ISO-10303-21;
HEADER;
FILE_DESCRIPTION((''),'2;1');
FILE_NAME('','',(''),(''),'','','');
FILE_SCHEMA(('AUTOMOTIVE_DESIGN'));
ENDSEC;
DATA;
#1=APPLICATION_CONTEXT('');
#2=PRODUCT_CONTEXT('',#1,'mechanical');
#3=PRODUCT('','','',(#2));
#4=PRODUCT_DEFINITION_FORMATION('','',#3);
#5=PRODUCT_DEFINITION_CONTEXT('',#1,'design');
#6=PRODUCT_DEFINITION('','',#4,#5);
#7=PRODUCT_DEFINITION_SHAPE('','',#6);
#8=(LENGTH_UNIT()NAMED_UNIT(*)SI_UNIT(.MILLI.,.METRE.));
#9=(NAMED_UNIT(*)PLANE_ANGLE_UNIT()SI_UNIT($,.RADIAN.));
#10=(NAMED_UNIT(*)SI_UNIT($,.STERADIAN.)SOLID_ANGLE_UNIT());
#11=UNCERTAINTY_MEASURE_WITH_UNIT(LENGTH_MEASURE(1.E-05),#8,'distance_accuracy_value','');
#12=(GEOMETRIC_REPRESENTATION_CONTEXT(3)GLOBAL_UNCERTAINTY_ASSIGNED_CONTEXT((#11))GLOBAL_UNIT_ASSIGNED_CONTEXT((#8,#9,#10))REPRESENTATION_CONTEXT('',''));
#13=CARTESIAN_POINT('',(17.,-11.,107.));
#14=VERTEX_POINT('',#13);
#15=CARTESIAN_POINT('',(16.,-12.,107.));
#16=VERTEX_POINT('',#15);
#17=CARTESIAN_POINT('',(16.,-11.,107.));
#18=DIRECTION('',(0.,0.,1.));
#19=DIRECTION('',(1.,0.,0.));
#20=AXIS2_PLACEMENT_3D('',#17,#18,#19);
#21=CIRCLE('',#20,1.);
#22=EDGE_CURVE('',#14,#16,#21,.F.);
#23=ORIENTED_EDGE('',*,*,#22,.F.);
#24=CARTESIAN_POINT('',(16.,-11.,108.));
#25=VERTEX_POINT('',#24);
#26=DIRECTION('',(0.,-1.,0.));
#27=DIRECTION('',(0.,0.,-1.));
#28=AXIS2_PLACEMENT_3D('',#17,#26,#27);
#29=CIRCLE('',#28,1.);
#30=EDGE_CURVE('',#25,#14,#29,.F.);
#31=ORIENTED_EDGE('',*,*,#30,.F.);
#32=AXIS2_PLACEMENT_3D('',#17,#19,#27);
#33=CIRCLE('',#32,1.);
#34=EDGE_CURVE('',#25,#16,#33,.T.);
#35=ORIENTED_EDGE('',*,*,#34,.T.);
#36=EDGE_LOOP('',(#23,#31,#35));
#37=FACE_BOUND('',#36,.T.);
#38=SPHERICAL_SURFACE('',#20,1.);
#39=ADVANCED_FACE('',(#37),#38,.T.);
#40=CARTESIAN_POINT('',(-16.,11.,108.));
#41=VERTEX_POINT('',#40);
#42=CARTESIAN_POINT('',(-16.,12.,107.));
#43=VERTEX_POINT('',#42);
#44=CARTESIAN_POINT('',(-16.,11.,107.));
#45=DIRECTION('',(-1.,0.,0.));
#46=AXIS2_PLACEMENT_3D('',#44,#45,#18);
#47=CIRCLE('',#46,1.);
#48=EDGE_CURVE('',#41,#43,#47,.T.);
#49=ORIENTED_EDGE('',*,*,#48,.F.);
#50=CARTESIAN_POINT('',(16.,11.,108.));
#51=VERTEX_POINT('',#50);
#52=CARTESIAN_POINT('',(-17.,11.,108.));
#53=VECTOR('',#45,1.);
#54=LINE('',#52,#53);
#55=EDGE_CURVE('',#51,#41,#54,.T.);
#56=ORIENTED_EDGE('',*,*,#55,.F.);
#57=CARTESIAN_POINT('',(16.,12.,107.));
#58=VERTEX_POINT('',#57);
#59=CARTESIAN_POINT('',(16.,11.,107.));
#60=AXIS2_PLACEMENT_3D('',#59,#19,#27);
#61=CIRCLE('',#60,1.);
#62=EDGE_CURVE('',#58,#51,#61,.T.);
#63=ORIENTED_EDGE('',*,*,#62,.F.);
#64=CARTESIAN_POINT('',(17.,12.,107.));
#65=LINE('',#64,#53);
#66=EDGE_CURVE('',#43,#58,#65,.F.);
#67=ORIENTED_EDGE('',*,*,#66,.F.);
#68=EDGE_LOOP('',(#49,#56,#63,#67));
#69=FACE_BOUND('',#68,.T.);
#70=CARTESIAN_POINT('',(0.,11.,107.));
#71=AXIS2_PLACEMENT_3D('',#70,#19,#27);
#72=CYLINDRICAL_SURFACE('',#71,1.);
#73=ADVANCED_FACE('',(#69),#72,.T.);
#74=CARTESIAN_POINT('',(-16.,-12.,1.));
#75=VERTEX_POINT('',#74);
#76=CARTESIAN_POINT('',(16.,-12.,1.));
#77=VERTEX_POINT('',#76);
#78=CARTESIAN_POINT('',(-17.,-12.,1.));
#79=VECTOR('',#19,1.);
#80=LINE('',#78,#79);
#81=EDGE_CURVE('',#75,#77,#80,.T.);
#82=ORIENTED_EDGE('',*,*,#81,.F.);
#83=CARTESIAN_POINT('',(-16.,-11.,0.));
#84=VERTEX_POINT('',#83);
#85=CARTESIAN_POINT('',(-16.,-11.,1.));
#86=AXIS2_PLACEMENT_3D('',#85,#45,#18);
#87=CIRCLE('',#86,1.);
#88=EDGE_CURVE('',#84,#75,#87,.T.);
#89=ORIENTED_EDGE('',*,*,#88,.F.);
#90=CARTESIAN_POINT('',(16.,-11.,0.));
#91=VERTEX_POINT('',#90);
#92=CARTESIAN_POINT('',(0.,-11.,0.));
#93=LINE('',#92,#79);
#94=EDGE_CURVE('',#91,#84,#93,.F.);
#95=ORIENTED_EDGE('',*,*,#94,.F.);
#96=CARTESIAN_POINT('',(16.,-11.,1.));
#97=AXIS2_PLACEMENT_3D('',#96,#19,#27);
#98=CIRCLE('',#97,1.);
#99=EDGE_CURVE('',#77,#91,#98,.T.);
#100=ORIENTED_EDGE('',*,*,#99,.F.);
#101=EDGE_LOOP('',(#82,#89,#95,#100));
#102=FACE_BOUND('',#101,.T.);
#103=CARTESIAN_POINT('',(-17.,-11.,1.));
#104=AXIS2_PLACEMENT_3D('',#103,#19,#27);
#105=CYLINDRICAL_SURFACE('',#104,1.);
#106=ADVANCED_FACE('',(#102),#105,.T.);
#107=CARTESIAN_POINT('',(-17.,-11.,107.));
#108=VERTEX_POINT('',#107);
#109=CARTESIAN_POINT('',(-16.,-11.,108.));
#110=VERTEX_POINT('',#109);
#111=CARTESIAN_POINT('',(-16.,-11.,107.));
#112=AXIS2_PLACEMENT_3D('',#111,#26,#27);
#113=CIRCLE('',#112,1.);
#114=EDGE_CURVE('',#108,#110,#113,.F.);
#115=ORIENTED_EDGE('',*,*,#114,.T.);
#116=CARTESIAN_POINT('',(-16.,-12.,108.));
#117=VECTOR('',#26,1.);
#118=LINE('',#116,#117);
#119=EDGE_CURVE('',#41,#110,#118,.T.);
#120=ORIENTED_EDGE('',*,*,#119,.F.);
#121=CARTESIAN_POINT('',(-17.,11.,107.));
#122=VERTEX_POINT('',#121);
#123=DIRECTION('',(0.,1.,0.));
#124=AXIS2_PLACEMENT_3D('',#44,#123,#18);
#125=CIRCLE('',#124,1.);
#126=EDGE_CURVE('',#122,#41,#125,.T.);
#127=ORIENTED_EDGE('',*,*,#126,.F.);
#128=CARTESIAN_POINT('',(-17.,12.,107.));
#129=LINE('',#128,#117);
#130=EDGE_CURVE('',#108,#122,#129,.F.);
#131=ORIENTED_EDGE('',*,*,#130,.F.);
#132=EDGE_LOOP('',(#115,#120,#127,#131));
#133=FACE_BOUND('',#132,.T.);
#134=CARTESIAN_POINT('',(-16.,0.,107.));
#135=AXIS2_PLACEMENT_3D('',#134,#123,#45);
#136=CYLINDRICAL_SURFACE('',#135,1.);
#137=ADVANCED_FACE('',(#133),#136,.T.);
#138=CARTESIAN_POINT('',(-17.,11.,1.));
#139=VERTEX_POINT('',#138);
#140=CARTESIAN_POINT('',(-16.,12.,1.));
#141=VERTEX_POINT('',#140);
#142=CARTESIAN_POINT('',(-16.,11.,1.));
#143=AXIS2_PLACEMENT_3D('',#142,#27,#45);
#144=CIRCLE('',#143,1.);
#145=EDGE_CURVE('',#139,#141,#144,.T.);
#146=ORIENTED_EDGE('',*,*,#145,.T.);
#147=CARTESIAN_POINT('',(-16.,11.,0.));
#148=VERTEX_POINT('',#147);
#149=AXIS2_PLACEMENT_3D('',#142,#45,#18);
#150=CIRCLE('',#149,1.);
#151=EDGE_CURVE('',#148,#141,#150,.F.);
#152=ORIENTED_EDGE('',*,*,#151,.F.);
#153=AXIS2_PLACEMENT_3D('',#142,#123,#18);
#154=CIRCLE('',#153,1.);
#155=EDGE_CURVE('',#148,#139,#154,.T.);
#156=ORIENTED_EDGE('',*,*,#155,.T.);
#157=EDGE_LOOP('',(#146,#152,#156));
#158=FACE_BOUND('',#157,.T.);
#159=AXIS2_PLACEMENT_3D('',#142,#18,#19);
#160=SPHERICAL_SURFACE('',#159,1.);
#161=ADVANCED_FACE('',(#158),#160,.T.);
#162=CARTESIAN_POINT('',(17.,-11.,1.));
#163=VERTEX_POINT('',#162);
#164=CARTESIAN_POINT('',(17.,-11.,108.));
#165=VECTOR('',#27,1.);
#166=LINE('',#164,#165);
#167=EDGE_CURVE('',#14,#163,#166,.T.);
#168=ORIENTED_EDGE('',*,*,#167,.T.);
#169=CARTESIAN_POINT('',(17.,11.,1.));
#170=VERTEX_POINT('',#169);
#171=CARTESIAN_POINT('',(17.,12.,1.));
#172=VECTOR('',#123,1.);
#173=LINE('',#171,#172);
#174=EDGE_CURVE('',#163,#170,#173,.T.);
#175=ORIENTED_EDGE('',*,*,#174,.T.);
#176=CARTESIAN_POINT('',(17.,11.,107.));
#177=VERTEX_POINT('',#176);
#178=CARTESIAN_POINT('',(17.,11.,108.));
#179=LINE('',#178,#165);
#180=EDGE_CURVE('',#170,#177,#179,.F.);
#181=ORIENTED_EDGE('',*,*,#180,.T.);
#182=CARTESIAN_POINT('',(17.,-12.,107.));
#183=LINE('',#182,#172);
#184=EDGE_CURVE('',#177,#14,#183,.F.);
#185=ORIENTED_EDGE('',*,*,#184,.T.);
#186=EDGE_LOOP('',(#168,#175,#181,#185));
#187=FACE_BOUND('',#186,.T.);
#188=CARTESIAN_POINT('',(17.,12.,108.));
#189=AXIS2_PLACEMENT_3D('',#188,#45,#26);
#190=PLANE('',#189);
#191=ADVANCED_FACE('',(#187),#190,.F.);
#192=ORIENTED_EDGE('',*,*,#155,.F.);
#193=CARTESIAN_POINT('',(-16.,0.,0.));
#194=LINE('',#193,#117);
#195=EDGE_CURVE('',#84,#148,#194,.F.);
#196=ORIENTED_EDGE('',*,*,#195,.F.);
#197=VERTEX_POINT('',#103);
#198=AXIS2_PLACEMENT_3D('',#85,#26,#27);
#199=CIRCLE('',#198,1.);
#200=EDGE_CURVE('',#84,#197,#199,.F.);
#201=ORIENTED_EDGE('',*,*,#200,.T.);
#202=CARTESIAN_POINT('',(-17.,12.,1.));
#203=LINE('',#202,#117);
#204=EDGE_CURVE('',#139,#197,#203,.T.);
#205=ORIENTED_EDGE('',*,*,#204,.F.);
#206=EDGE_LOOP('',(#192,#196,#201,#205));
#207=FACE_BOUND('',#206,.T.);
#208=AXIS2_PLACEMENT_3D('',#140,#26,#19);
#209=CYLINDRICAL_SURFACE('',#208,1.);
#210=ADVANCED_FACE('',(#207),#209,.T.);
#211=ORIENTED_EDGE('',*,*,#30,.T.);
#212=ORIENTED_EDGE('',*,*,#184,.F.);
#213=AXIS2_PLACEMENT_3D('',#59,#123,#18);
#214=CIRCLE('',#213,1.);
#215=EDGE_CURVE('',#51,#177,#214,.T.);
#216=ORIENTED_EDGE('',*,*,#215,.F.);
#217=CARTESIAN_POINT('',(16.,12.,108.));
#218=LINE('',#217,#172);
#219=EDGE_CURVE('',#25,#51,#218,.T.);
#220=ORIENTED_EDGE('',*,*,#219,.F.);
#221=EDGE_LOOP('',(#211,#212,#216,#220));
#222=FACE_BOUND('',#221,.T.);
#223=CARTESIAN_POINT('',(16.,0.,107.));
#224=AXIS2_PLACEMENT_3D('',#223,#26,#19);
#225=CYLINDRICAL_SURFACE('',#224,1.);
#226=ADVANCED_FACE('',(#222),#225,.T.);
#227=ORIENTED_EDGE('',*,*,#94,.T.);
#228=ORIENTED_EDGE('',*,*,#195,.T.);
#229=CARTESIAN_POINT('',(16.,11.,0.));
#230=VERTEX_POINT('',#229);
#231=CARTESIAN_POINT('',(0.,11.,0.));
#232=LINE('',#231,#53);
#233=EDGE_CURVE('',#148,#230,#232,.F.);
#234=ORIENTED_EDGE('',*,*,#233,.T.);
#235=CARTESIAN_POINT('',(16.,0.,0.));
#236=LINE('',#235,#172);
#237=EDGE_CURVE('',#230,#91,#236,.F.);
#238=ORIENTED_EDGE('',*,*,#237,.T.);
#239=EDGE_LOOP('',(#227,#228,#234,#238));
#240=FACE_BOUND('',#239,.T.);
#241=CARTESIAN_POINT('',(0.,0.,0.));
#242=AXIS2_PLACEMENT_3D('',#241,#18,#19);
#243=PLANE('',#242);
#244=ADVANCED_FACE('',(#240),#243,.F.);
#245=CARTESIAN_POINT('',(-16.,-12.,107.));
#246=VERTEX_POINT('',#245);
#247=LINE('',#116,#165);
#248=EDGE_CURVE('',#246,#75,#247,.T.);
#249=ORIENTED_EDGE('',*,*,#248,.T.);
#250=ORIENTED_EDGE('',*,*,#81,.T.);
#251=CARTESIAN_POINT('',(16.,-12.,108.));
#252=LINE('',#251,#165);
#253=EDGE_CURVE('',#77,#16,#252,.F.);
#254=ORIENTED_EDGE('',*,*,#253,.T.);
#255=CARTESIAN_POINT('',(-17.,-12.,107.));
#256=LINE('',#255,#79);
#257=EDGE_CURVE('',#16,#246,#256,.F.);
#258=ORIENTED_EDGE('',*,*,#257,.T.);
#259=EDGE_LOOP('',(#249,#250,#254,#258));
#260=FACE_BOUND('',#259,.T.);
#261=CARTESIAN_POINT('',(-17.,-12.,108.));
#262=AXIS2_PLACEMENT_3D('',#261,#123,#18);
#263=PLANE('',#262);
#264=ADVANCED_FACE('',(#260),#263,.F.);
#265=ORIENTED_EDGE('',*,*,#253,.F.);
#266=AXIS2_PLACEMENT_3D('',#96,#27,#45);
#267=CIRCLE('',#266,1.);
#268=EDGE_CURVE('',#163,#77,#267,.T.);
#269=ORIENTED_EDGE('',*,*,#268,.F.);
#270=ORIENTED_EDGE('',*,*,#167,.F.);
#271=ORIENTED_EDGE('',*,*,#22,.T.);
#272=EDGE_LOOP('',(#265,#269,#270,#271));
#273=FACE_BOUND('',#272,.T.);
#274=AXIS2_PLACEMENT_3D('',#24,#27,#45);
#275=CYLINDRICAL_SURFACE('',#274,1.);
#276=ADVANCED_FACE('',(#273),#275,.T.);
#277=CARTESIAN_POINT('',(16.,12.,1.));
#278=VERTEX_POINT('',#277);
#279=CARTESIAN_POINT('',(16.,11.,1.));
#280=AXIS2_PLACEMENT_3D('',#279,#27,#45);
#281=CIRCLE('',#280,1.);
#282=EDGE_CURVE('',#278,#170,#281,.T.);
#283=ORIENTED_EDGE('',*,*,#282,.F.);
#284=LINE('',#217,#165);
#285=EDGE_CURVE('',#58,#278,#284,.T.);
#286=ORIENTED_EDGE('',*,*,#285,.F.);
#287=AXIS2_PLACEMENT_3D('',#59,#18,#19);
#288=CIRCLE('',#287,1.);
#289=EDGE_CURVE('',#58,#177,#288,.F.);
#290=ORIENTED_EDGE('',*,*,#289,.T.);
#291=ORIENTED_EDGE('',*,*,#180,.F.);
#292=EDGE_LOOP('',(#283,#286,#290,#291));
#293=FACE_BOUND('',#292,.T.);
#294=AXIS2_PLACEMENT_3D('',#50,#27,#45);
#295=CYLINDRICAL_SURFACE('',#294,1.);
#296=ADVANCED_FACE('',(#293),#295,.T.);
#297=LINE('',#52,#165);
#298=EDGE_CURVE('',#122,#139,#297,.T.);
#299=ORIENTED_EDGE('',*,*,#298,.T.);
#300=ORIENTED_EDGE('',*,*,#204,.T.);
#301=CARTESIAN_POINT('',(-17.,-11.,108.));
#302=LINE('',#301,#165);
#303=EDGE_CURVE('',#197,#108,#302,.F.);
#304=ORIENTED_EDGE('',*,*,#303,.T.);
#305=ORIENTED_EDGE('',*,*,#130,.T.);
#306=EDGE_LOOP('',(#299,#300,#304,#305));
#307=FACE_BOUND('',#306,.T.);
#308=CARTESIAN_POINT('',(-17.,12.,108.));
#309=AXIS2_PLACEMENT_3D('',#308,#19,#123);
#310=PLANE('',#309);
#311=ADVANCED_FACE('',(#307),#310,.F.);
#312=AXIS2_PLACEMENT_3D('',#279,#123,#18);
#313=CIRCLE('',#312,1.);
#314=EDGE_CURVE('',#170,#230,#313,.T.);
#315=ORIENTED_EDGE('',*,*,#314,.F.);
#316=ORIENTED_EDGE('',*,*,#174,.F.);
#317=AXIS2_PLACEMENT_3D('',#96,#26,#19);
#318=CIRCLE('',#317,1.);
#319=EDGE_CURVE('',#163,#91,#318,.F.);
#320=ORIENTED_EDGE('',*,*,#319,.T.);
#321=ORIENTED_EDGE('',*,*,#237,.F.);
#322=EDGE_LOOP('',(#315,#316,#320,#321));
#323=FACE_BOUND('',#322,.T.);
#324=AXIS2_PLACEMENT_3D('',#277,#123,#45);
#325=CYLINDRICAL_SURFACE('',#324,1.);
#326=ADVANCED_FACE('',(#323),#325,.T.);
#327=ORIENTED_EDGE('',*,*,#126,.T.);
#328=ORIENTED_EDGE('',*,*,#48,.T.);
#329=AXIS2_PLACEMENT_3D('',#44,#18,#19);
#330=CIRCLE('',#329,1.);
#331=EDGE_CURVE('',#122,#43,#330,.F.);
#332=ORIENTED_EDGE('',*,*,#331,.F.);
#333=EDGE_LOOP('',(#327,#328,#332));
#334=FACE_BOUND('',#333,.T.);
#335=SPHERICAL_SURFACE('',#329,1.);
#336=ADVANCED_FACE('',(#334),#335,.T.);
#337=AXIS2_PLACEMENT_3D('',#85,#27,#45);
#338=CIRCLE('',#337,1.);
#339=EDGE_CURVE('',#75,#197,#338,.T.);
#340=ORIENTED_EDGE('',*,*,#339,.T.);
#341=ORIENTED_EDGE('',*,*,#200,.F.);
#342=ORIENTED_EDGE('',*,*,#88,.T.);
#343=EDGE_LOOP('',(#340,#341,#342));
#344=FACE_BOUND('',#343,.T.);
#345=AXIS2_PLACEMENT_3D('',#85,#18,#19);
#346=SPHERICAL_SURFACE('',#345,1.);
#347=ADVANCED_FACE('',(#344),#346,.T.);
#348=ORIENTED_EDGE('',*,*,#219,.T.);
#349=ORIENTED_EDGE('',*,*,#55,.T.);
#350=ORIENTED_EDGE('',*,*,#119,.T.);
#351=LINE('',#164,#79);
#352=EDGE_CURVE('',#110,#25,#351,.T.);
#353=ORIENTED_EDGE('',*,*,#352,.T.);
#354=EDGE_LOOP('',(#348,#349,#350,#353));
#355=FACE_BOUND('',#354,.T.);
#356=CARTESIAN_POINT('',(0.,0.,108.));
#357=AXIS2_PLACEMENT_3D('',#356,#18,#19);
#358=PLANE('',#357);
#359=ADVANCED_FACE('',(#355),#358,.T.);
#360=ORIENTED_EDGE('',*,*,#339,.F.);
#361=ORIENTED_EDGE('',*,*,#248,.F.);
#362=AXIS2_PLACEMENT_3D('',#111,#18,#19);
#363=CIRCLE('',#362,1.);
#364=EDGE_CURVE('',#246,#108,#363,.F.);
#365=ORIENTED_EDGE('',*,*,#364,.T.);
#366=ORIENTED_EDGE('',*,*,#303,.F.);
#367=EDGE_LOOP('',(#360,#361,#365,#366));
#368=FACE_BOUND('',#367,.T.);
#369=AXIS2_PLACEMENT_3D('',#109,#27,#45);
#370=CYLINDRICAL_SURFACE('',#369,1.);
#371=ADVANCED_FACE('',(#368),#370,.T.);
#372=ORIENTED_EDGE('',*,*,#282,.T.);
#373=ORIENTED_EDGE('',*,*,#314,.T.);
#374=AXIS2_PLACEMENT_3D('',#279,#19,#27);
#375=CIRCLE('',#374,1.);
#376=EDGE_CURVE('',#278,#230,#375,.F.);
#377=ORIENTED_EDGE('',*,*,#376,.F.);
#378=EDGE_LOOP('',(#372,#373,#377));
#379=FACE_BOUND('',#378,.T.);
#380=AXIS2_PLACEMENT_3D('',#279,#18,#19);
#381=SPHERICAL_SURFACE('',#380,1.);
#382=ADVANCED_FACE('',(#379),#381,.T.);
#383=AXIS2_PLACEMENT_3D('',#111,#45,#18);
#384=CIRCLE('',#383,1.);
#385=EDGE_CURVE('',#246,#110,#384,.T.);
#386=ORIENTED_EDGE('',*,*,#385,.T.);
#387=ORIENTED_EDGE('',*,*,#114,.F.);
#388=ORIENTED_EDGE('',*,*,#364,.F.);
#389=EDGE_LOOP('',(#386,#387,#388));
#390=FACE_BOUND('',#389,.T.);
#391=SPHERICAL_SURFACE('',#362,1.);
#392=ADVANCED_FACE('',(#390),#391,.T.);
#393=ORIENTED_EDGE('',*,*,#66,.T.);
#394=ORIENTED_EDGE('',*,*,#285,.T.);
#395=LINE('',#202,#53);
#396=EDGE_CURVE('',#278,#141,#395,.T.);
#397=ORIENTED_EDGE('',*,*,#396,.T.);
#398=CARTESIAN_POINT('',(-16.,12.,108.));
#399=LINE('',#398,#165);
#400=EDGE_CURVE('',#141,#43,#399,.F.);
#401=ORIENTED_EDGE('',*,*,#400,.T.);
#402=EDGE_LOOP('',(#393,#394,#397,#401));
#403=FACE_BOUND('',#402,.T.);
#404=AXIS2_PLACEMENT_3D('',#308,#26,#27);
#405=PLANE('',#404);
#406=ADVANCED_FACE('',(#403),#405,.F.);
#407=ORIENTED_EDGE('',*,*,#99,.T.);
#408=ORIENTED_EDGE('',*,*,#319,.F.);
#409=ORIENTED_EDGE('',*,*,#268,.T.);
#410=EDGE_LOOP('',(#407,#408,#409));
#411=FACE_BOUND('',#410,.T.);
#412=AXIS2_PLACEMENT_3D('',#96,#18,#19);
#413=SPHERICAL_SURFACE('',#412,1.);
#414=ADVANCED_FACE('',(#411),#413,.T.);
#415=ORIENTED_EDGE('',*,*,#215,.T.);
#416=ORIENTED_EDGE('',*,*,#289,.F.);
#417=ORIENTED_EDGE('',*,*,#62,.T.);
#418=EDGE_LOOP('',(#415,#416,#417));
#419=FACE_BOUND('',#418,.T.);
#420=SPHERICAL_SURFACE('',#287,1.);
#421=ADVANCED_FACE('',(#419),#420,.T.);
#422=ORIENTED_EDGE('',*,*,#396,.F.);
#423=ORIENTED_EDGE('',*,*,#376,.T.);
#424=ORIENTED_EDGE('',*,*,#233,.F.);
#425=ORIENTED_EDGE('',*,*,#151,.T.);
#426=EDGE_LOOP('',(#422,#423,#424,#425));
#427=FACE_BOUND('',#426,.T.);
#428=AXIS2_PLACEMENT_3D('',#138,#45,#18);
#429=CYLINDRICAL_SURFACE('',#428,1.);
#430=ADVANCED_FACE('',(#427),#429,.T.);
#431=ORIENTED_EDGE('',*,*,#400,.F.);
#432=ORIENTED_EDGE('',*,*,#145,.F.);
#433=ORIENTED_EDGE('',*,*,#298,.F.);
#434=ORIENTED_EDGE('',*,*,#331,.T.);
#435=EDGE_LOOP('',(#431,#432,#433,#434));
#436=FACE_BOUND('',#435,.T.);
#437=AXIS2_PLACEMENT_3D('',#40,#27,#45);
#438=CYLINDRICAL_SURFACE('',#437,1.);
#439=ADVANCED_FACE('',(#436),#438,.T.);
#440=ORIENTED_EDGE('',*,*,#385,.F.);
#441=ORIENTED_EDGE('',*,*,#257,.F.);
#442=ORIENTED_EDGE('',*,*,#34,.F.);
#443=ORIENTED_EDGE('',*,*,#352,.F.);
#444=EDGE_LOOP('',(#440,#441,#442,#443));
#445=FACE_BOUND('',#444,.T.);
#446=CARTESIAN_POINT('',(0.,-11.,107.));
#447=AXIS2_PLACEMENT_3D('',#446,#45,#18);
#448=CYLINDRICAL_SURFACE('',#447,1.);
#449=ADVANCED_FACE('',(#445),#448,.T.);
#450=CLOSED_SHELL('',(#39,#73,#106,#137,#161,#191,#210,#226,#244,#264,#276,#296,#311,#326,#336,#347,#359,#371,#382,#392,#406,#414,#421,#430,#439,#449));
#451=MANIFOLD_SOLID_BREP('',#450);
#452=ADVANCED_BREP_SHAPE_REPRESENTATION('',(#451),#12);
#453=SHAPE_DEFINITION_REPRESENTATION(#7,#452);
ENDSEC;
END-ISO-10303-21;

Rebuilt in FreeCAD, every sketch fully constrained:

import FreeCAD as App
import Part
import Sketcher

V = App.Vector
Q = App.Units.Quantity


def add_polygon(sketch, points):
    """Adds a closed chain of lines whose ends are joined by coincident constraints."""
    first, n = sketch.GeometryCount, len(points)
    for a, b in zip(points, points[1:] + points[:1]):
        sketch.addGeometry(Part.LineSegment(App.Vector(*a, 0), App.Vector(*b, 0)), False)
    for i in range(n):
        sketch.addConstraint(Sketcher.Constraint("Coincident", first + i, 2, first + (i + 1) % n, 1))

doc = App.newDocument("Part")
body = doc.addObject("PartDesign::Body", "Body")

# Sketch on XY plane
sketch1 = body.newObject("Sketcher::SketchObject", "Sketch")
sketch1.AttachmentSupport = (doc.getObject("XY_Plane"), [""])
sketch1.MapMode = "FlatFace"
add_polygon(sketch1, [(-17, 12), (-17, -12), (17, -12), (17, 12)])  # lines 0-3
sketch1.addConstraint(Sketcher.Constraint("Vertical", 0))
sketch1.addConstraint(Sketcher.Constraint("Horizontal", 1))
sketch1.addConstraint(Sketcher.Constraint("Vertical", 2))
sketch1.addConstraint(Sketcher.Constraint("Horizontal", 3))
sketch1.addConstraint(Sketcher.Constraint("Symmetric", 0, 2, 2, 2, -1, 1))
sketch1.addConstraint(Sketcher.Constraint("DistanceX", 1, 1, 1, 2, Q("34 mm")))
sketch1.addConstraint(Sketcher.Constraint("DistanceY", 0, 2, 0, 1, Q("24 mm")))
pad1 = body.newObject("PartDesign::Pad", "Pad")
pad1.Profile = sketch1
pad1.Length = 108
doc.recompute()

fillet = body.newObject("PartDesign::Fillet", "Fillet")
fillet.Base = (pad1, ["Edge1"])
fillet.UseAllEdges = True
fillet.Radius = 1

doc.recompute()
